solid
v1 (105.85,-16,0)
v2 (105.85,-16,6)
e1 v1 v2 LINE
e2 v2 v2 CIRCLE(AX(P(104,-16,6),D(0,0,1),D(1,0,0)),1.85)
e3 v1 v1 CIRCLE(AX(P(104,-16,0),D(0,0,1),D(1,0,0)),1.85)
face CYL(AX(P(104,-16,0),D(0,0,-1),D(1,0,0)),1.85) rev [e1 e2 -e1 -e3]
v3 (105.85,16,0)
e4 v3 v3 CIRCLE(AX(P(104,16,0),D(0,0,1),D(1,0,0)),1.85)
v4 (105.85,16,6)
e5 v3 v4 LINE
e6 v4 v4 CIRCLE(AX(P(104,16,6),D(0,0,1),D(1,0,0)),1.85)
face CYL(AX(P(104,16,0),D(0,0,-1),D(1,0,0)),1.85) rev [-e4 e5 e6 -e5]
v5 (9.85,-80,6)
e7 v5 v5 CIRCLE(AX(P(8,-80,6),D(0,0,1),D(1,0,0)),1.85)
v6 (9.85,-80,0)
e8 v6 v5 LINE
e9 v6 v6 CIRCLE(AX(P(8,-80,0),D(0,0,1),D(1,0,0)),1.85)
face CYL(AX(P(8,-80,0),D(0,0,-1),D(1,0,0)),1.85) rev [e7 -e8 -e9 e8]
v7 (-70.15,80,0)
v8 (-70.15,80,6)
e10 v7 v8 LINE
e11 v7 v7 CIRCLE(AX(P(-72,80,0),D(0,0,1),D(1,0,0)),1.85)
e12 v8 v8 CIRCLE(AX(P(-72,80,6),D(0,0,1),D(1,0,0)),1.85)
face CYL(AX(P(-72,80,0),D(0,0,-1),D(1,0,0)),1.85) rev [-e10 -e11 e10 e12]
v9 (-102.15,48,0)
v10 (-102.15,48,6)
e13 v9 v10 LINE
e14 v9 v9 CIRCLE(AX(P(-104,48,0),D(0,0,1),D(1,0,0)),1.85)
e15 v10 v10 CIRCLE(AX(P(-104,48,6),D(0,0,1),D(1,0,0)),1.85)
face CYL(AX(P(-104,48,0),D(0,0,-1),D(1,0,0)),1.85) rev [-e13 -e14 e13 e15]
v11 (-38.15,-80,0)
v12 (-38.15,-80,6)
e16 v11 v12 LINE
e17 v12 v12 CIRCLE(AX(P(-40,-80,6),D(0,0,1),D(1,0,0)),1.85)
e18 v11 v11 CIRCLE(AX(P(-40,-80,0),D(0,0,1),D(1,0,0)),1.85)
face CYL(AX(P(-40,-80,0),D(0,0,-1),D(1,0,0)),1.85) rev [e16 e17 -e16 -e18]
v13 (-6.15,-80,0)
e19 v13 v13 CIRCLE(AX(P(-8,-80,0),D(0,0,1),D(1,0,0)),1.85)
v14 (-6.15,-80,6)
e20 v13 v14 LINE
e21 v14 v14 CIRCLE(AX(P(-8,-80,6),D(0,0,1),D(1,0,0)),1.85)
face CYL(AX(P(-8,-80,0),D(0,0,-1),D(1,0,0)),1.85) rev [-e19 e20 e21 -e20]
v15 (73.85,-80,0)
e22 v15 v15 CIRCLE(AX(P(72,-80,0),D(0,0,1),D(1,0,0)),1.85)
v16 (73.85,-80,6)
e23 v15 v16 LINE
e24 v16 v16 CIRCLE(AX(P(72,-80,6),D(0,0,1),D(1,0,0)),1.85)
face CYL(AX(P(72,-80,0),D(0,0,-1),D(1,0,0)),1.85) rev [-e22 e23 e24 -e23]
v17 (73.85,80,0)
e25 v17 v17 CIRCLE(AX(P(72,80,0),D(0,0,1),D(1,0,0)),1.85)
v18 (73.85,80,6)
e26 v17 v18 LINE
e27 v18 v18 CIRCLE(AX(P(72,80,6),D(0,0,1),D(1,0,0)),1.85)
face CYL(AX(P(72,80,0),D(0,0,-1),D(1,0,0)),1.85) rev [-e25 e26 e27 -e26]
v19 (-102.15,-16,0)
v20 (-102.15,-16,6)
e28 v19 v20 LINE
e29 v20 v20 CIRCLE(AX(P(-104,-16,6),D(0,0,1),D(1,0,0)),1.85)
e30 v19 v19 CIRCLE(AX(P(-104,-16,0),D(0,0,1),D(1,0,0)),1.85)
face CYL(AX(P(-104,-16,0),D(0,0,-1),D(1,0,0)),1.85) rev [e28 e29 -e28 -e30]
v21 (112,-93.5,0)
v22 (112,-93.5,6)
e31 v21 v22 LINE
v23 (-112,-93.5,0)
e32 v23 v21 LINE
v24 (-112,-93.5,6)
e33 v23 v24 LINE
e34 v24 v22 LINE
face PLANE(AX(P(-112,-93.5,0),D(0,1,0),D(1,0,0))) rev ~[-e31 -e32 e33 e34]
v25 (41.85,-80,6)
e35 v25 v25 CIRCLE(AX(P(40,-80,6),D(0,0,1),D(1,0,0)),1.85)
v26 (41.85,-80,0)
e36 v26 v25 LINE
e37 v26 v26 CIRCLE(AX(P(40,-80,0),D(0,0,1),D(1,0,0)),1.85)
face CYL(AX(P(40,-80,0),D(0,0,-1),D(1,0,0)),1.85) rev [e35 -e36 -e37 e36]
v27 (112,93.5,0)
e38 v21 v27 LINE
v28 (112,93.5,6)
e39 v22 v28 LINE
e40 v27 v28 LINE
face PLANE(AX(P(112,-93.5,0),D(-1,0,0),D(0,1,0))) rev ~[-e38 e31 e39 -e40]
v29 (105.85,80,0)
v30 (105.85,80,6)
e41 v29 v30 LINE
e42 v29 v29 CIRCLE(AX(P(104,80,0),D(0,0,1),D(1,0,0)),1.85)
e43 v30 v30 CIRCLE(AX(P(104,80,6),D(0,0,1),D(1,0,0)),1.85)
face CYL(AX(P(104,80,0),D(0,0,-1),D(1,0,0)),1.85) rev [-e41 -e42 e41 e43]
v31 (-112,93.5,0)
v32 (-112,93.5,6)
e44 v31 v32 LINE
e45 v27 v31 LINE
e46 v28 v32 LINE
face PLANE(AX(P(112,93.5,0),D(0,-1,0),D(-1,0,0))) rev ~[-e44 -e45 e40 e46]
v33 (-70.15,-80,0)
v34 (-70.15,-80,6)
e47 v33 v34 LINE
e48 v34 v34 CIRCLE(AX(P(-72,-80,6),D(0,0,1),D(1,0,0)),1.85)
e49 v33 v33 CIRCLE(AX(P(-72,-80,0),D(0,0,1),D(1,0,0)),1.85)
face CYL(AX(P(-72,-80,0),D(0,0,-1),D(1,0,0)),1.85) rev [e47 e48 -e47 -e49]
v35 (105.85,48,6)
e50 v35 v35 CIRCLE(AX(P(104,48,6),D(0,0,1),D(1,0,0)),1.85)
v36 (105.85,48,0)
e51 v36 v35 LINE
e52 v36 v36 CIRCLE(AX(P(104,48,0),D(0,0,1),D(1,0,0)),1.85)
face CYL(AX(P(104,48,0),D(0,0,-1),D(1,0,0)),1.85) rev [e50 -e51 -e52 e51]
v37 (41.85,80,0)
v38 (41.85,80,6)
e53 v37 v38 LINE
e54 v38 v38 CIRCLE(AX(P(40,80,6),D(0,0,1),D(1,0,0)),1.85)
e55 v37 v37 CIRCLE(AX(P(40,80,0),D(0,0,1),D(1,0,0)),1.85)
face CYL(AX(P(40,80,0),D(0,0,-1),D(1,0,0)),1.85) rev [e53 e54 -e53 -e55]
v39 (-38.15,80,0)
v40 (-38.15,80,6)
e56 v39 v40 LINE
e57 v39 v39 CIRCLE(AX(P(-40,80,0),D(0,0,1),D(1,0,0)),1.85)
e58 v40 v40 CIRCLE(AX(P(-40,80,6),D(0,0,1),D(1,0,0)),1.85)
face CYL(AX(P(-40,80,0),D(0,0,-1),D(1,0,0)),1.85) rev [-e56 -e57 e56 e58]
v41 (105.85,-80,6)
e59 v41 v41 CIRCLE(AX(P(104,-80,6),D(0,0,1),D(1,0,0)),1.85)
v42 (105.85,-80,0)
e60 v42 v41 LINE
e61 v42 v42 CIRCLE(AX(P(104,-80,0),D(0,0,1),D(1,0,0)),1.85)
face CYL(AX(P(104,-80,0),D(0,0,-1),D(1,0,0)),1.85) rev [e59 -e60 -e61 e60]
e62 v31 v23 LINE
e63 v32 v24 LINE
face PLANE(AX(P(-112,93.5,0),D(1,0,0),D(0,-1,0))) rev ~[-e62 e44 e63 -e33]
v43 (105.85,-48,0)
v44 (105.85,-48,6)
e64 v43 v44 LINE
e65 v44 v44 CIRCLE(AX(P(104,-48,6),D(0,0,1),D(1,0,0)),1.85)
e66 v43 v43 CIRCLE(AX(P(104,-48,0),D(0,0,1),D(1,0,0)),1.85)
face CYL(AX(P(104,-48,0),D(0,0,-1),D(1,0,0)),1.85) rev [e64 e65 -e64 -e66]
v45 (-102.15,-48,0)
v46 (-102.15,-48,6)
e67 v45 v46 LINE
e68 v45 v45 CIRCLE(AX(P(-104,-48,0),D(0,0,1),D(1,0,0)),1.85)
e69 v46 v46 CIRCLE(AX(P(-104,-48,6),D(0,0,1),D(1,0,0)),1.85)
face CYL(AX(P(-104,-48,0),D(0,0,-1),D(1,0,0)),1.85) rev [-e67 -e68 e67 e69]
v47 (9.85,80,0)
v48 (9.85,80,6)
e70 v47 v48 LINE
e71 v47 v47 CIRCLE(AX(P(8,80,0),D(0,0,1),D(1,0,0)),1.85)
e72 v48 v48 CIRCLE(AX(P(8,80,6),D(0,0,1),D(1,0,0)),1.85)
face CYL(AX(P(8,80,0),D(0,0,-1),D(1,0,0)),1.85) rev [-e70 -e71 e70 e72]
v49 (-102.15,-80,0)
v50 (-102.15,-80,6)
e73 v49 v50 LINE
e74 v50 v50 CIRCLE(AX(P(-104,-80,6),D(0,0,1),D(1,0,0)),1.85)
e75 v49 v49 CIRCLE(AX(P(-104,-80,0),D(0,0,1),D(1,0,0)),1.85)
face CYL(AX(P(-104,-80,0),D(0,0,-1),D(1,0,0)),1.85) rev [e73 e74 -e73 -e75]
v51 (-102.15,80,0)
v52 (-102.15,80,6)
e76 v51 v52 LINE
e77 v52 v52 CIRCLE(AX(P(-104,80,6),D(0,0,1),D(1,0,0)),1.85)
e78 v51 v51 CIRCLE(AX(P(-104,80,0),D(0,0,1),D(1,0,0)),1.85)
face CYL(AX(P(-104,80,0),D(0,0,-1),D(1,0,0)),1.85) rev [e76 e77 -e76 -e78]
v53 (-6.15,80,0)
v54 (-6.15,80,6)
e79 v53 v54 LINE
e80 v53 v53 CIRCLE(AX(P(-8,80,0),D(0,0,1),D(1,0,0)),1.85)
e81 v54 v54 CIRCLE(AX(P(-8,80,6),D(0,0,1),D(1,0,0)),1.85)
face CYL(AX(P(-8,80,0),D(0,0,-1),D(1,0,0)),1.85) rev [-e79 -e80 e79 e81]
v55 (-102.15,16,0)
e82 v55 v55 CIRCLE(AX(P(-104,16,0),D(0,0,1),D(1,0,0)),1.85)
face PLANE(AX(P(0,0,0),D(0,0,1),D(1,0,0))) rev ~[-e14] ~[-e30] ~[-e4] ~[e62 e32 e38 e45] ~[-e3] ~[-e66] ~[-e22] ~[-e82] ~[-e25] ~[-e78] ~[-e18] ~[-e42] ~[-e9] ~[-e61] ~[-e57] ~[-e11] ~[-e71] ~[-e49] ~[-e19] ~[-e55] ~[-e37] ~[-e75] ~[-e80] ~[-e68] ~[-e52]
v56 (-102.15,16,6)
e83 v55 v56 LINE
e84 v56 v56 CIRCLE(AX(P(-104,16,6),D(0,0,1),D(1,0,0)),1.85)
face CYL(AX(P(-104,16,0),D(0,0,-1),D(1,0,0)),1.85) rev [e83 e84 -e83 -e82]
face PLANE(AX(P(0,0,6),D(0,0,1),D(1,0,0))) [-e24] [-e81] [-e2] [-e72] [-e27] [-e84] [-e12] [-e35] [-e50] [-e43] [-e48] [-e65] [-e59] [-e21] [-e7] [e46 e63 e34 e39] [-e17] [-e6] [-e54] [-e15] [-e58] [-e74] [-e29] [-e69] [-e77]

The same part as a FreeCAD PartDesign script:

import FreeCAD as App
import Part
import Sketcher


def add_polygon(sketch, points):
    """Adds a closed chain of lines whose ends are joined by coincident constraints."""
    first, n = sketch.GeometryCount, len(points)
    for a, b in zip(points, points[1:] + points[:1]):
        sketch.addGeometry(Part.LineSegment(App.Vector(*a, 0), App.Vector(*b, 0)), False)
    for i in range(n):
        sketch.addConstraint(Sketcher.Constraint("Coincident", first + i, 2, first + (i + 1) % n, 1))

doc = App.newDocument("Part")
body = doc.addObject("PartDesign::Body", "Body")

sketch1 = body.newObject("Sketcher::SketchObject", "Sketch")
sketch1.AttachmentSupport = (doc.getObject("XY_Plane"), [""])
sketch1.MapMode = "FlatFace"
add_polygon(sketch1, [(-112, 93.5), (-112, -93.5), (112, -93.5), (112, 93.5)])
sketch1.addGeometry(Part.Circle(App.Vector(-104, -80, 0), App.Vector(0, 0, 1), 1.85), False)
sketch1.addGeometry(Part.Circle(App.Vector(-72, -80, 0), App.Vector(0, 0, 1), 1.85), False)
sketch1.addGeometry(Part.Circle(App.Vector(-104, -48, 0), App.Vector(0, 0, 1), 1.85), False)
sketch1.addGeometry(Part.Circle(App.Vector(-40, -80, 0), App.Vector(0, 0, 1), 1.85), False)
sketch1.addGeometry(Part.Circle(App.Vector(-8, -80, 0), App.Vector(0, 0, 1), 1.85), False)
sketch1.addGeometry(Part.Circle(App.Vector(-104, -16, 0), App.Vector(0, 0, 1), 1.85), False)
sketch1.addGeometry(Part.Circle(App.Vector(8, -80, 0), App.Vector(0, 0, 1), 1.85), False)
sketch1.addGeometry(Part.Circle(App.Vector(40, -80, 0), App.Vector(0, 0, 1), 1.85), False)
sketch1.addGeometry(Part.Circle(App.Vector(72, -80, 0), App.Vector(0, 0, 1), 1.85), False)
sketch1.addGeometry(Part.Circle(App.Vector(104, -80, 0), App.Vector(0, 0, 1), 1.85), False)
sketch1.addGeometry(Part.Circle(App.Vector(104, -48, 0), App.Vector(0, 0, 1), 1.85), False)
sketch1.addGeometry(Part.Circle(App.Vector(104, -16, 0), App.Vector(0, 0, 1), 1.85), False)
sketch1.addGeometry(Part.Circle(App.Vector(-104, 16, 0), App.Vector(0, 0, 1), 1.85), False)
sketch1.addGeometry(Part.Circle(App.Vector(-104, 48, 0), App.Vector(0, 0, 1), 1.85), False)
sketch1.addGeometry(Part.Circle(App.Vector(-104, 80, 0), App.Vector(0, 0, 1), 1.85), False)
sketch1.addGeometry(Part.Circle(App.Vector(-72, 80, 0), App.Vector(0, 0, 1), 1.85), False)
sketch1.addGeometry(Part.Circle(App.Vector(-40, 80, 0), App.Vector(0, 0, 1), 1.85), False)
sketch1.addGeometry(Part.Circle(App.Vector(-8, 80, 0), App.Vector(0, 0, 1), 1.85), False)
sketch1.addGeometry(Part.Circle(App.Vector(104, 16, 0), App.Vector(0, 0, 1), 1.85), False)
sketch1.addGeometry(Part.Circle(App.Vector(8, 80, 0), App.Vector(0, 0, 1), 1.85), False)
sketch1.addGeometry(Part.Circle(App.Vector(40, 80, 0), App.Vector(0, 0, 1), 1.85), False)
sketch1.addGeometry(Part.Circle(App.Vector(104, 48, 0), App.Vector(0, 0, 1), 1.85), False)
sketch1.addGeometry(Part.Circle(App.Vector(72, 80, 0), App.Vector(0, 0, 1), 1.85), False)
sketch1.addGeometry(Part.Circle(App.Vector(104, 80, 0), App.Vector(0, 0, 1), 1.85), False)
sketch1.addConstraint([
    Sketcher.Constraint("Vertical", 0),
    Sketcher.Constraint("Horizontal", 1),
    Sketcher.Constraint("Vertical", 2),
    Sketcher.Constraint("Horizontal", 3),
    Sketcher.Constraint("Equal", 4, 5),
    Sketcher.Constraint("Equal", 5, 6),
    Sketcher.Constraint("Equal", 6, 7),
    Sketcher.Constraint("Equal", 7, 8),
    Sketcher.Constraint("Equal", 8, 9),
    Sketcher.Constraint("Equal", 9, 10),
    Sketcher.Constraint("Equal", 10, 11),
    Sketcher.Constraint("Equal", 11, 12),
    Sketcher.Constraint("Equal", 12, 13),
    Sketcher.Constraint("Equal", 13, 14),
    Sketcher.Constraint("Equal", 14, 15),
    Sketcher.Constraint("Equal", 15, 16),
    Sketcher.Constraint("Equal", 16, 17),
    Sketcher.Constraint("Equal", 17, 18),
    Sketcher.Constraint("Equal", 18, 19),
    Sketcher.Constraint("Equal", 19, 20),
    Sketcher.Constraint("Equal", 20, 21),
    Sketcher.Constraint("Equal", 21, 22),
    Sketcher.Constraint("Equal", 22, 23),
    Sketcher.Constraint("Equal", 23, 24),
    Sketcher.Constraint("Equal", 24, 25),
    Sketcher.Constraint("Equal", 25, 26),
    Sketcher.Constraint("Equal", 26, 27),
    Sketcher.Constraint("Symmetric", 15, 3, 16, 3, -1, 1),
    Sketcher.Constraint("Symmetric", 14, 3, 17, 3, -1, 1),
    Sketcher.Constraint("Symmetric", 13, 3, 18, 3, -1, 1),
    Sketcher.Constraint("Symmetric", 12, 3, 19, 3, -1, 1),
    Sketcher.Constraint("Symmetric", 11, 3, 20, 3, -1, 1),
    Sketcher.Constraint("Symmetric", 10, 3, 21, 3, -1, 1),
    Sketcher.Constraint("Symmetric", 9, 3, 22, 3, -1, 1),
    Sketcher.Constraint("Symmetric", 8, 3, 23, 3, -1, 1),
    Sketcher.Constraint("Symmetric", 7, 3, 24, 3, -1, 1),
    Sketcher.Constraint("Symmetric", 6, 3, 25, 3, -1, 1),
    Sketcher.Constraint("Symmetric", 5, 3, 26, 3, -1, 1),
    Sketcher.Constraint("Symmetric", 4, 3, 27, 3, -1, 1),
    Sketcher.Constraint("Symmetric", 0, 2, 2, 2, -1, 1),
    Sketcher.Constraint("Symmetric", 8, 3, 10, 3, -2),
    Sketcher.Constraint("Symmetric", 7, 3, 11, 3, -2),
    Sketcher.Constraint("Symmetric", 5, 3, 12, 3, -2),
    Sketcher.Constraint("Symmetric", 4, 3, 13, 3, -2),
    Sketcher.Constraint("Symmetric", 6, 3, 14, 3, -2),
    Sketcher.Constraint("Symmetric", 9, 3, 15, 3, -2),
    Sketcher.Constraint("Horizontal", 4, 3, 5, 3),
    Sketcher.Constraint("Horizontal", 5, 3, 7, 3),
    Sketcher.Constraint("Horizontal", 7, 3, 8, 3),
    Sketcher.Constraint("Vertical", 4, 3, 6, 3),
    Sketcher.Constraint("Vertical", 6, 3, 9, 3),
    Sketcher.Constraint("DistanceX", 1, 1, 1, 2, 224.0),
    Sketcher.Constraint("DistanceY", 0, 2, 0, 1, 187.0),
    Sketcher.Constraint("DistanceX", 8, 3, -1, 1, 8.0),
    Sketcher.Constraint("DistanceY", 9, 3, -1, 1, 16.0),
    Sketcher.Constraint("DistanceX", 4, 3, 5, 3, 32.0),
    Sketcher.Constraint("DistanceY", 4, 3, 6, 3, 32.0),
    Sketcher.Constraint("DistanceX", 5, 3, 7, 3, 32.0),
    Sketcher.Constraint("DistanceX", 7, 3, 8, 3, 32.0),
    Sketcher.Constraint("DistanceY", 6, 3, 9, 3, 32.0),
    Sketcher.Constraint("Diameter", 4, 3.7),
])
pad1 = body.newObject("PartDesign::Pad", "Pad")
pad1.Profile = sketch1
pad1.Length = 6

doc.recompute()
